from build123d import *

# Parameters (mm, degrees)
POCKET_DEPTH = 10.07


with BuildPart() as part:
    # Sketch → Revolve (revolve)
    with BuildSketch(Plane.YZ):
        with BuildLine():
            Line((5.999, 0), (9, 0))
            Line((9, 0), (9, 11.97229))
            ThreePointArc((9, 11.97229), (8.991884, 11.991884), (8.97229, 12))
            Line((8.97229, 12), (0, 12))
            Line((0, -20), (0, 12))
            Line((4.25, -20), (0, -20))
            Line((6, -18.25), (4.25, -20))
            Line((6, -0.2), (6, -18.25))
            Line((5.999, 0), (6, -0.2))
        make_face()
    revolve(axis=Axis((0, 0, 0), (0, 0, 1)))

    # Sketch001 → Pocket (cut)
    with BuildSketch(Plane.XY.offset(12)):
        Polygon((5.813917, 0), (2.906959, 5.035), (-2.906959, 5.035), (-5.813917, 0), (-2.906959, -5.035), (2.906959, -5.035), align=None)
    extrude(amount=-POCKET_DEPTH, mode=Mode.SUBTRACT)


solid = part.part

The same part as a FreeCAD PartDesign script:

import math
import FreeCAD as App
import Part
import Sketcher

V = App.Vector
Q = App.Units.Quantity


def add_polygon(sketch, points):
    """Adds a closed chain of lines whose ends are joined by coincident constraints."""
    first, n = sketch.GeometryCount, len(points)
    for a, b in zip(points, points[1:] + points[:1]):
        sketch.addGeometry(Part.LineSegment(App.Vector(*a, 0), App.Vector(*b, 0)), False)
    for i in range(n):
        sketch.addConstraint(Sketcher.Constraint("Coincident", first + i, 2, first + (i + 1) % n, 1))

doc = App.newDocument("Part")
body = doc.addObject("PartDesign::Body", "Body")

# Sketch on YZ plane
sketch1 = body.newObject("Sketcher::SketchObject", "Sketch")
sketch1.AttachmentSupport = (doc.getObject("YZ_Plane"), [""])
sketch1.MapMode = "FlatFace"
sketch1.addGeometry([
    Part.LineSegment(V(5.999, 0, 0), V(9, 0, 0)),  # 0
    Part.LineSegment(V(9, 0, 0), V(9, 11.97229, 0)),  # 1
    Part.ArcOfCircle(Part.Circle(V(8.97229, 11.97229, 0), V(0, 0, 1), 0.02771), math.radians(-0.000502), math.radians(90.000502)),  # 2
    Part.LineSegment(V(8.97229, 12, 0), V(0, 12, 0)),  # 3
    Part.LineSegment(V(0, 12, 0), V(0, -20, 0)),  # 4
    Part.LineSegment(V(0, -20, 0), V(4.25, -20, 0)),  # 5
    Part.LineSegment(V(4.25, -20, 0), V(6, -18.25, 0)),  # 6
    Part.LineSegment(V(6, -18.25, 0), V(6, -0.2, 0)),  # 7
    Part.LineSegment(V(6, -0.2, 0), V(5.999, 0, 0)),  # 8
], False)
sketch1.addConstraint([
    Sketcher.Constraint("Coincident", 0, 2, 1, 1),
    Sketcher.Constraint("Coincident", 1, 2, 2, 1),
    Sketcher.Constraint("Coincident", 2, 2, 3, 1),
    Sketcher.Constraint("Coincident", 3, 2, 4, 1),
    Sketcher.Constraint("Coincident", 4, 2, 5, 1),
    Sketcher.Constraint("Coincident", 5, 2, 6, 1),
    Sketcher.Constraint("Coincident", 6, 2, 7, 1),
    Sketcher.Constraint("Coincident", 7, 2, 8, 1),
    Sketcher.Constraint("Coincident", 8, 2, 0, 1),
    Sketcher.Constraint("Horizontal", 0),
    Sketcher.Constraint("Vertical", 1),
    Sketcher.Constraint("Horizontal", 3),
    Sketcher.Constraint("Vertical", 4),
    Sketcher.Constraint("Horizontal", 5),
    Sketcher.Constraint("Vertical", 7),
    Sketcher.Constraint("PointOnObject", 0, 2, -1),
    Sketcher.Constraint("PointOnObject", 3, 2, -2),
    Sketcher.Constraint("Horizontal", 2, 3, 1, 2),
    Sketcher.Constraint("DistanceY", 4, 2, 4, 1, 32.0),
    Sketcher.Constraint("Angle", 6, Q("45 deg")),
    Sketcher.Constraint("DistanceX", -1, 1, 0, 2, 9.0),
    Sketcher.Constraint("DistanceY", -1, 1, 2, 2, 12.0),
    Sketcher.Constraint("DistanceX", -1, 1, 6, 2, 6.0),
    Sketcher.Constraint("DistanceX", 5, 1, 5, 2, 4.25),
    Sketcher.Constraint("DistanceY", 7, 1, 7, 2, 18.05),
    Sketcher.Constraint("DistanceX", 0, 1, 0, 2, 3.001),
    Sketcher.Constraint("Radius", 2, 0.02771),
    Sketcher.Constraint("DistanceX", 3, 2, 3, 1, 8.97229),
])
revolution = body.newObject("PartDesign::Revolution", "Revolution")
revolution.Profile = sketch1
revolution.ReferenceAxis = (sketch1, ["V_Axis"])
revolution.Angle = 360

# Sketch on XY plane
sketch2 = body.newObject("Sketcher::SketchObject", "Sketch001")
sketch2.AttachmentSupport = (doc.getObject("XY_Plane"), [""])
sketch2.MapMode = "FlatFace"
sketch2.AttachmentOffset = App.Placement(V(0, 0, 12), App.Rotation())
add_polygon(sketch2, [(5.813917, 0), (2.906959, 5.035), (-2.906959, 5.035), (-5.813917, 0), (-2.906959, -5.035), (2.906959, -5.035)])  # lines 0-5
sketch2.addConstraint([
    Sketcher.Constraint("Horizontal", 1),
    Sketcher.Constraint("Horizontal", 4),
    Sketcher.Constraint("Symmetric", 0, 2, 3, 2, -1, 1),
    Sketcher.Constraint("Symmetric", 2, 2, 5, 2, -1, 1),
    Sketcher.Constraint("PointOnObject", 2, 2, -1),
    Sketcher.Constraint("Parallel", 2, 5),
    Sketcher.Constraint("Vertical", 1, 2, 3, 2),
    Sketcher.Constraint("Angle", 0, Q("119.999995 deg")),
    Sketcher.Constraint("DistanceY", 3, 2, 1, 2, 10.07),
    Sketcher.Constraint("DistanceX", 1, 2, 1, 1, 5.813918),
])
pocket1 = body.newObject("PartDesign::Pocket", "Pocket")
pocket1.Profile = sketch2
pocket1.Length = 10.07

doc.recompute()
